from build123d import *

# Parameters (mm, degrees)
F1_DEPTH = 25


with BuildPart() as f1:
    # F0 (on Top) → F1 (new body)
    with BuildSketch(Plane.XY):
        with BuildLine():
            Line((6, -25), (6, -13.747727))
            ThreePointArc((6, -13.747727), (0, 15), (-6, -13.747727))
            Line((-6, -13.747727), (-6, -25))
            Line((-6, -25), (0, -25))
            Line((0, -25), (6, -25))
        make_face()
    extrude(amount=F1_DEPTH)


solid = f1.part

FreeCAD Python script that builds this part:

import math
import FreeCAD as App
import Part
import Sketcher
from FreeCAD import Vector
Q = App.Units.Quantity

doc = App.newDocument("Part")
body = doc.addObject("PartDesign::Body", "Body")

# Sketch on XY plane
sketch1 = doc.addObject("Sketcher::SketchObject", "Sketch")
body.addObject(sketch1)
sketch1.AttachmentSupport = (doc.XY_Plane, [""])
sketch1.MapMode = "FlatFace"
sketch1.addGeometry([
    Part.LineSegment(Vector(6, -25, 0), Vector(6, -14, 0)),
    Part.ArcOfCircle(Part.Circle(Vector(0, 0, 0), Vector(0, 0, 1), 15), math.radians(-66), math.radians(246)),
    Part.LineSegment(Vector(-6, -14, 0), Vector(-6, -25, 0)),
    Part.LineSegment(Vector(-6, -25, 0), Vector(6, -25, 0)),
], False)
sketch1.addConstraint([
    Sketcher.Constraint("Coincident", 0, 2, 1, 1),
    Sketcher.Constraint("Coincident", 1, 2, 2, 1),
    Sketcher.Constraint("Coincident", 2, 2, 3, 1),
    Sketcher.Constraint("Coincident", 3, 2, 0, 1),
    Sketcher.Constraint("Vertical", 0),
    Sketcher.Constraint("Vertical", 2),
    Sketcher.Constraint("Horizontal", 3),
    Sketcher.Constraint("Coincident", 1, 3, -1, 1),
    Sketcher.Constraint("Horizontal", 0, 2, 1, 2),
    Sketcher.Constraint("Radius", 1, Q("15 mm")),
    Sketcher.Constraint("DistanceX", 3, 1, 3, 2, Q("12 mm")),
    Sketcher.Constraint("DistanceY", 2, 2, -1, 1, Q("25 mm")),
])
pad1 = doc.addObject("PartDesign::Pad", "Pad")
body.addObject(pad1)
pad1.Profile = sketch1
pad1.Length = 25

doc.recompute()
